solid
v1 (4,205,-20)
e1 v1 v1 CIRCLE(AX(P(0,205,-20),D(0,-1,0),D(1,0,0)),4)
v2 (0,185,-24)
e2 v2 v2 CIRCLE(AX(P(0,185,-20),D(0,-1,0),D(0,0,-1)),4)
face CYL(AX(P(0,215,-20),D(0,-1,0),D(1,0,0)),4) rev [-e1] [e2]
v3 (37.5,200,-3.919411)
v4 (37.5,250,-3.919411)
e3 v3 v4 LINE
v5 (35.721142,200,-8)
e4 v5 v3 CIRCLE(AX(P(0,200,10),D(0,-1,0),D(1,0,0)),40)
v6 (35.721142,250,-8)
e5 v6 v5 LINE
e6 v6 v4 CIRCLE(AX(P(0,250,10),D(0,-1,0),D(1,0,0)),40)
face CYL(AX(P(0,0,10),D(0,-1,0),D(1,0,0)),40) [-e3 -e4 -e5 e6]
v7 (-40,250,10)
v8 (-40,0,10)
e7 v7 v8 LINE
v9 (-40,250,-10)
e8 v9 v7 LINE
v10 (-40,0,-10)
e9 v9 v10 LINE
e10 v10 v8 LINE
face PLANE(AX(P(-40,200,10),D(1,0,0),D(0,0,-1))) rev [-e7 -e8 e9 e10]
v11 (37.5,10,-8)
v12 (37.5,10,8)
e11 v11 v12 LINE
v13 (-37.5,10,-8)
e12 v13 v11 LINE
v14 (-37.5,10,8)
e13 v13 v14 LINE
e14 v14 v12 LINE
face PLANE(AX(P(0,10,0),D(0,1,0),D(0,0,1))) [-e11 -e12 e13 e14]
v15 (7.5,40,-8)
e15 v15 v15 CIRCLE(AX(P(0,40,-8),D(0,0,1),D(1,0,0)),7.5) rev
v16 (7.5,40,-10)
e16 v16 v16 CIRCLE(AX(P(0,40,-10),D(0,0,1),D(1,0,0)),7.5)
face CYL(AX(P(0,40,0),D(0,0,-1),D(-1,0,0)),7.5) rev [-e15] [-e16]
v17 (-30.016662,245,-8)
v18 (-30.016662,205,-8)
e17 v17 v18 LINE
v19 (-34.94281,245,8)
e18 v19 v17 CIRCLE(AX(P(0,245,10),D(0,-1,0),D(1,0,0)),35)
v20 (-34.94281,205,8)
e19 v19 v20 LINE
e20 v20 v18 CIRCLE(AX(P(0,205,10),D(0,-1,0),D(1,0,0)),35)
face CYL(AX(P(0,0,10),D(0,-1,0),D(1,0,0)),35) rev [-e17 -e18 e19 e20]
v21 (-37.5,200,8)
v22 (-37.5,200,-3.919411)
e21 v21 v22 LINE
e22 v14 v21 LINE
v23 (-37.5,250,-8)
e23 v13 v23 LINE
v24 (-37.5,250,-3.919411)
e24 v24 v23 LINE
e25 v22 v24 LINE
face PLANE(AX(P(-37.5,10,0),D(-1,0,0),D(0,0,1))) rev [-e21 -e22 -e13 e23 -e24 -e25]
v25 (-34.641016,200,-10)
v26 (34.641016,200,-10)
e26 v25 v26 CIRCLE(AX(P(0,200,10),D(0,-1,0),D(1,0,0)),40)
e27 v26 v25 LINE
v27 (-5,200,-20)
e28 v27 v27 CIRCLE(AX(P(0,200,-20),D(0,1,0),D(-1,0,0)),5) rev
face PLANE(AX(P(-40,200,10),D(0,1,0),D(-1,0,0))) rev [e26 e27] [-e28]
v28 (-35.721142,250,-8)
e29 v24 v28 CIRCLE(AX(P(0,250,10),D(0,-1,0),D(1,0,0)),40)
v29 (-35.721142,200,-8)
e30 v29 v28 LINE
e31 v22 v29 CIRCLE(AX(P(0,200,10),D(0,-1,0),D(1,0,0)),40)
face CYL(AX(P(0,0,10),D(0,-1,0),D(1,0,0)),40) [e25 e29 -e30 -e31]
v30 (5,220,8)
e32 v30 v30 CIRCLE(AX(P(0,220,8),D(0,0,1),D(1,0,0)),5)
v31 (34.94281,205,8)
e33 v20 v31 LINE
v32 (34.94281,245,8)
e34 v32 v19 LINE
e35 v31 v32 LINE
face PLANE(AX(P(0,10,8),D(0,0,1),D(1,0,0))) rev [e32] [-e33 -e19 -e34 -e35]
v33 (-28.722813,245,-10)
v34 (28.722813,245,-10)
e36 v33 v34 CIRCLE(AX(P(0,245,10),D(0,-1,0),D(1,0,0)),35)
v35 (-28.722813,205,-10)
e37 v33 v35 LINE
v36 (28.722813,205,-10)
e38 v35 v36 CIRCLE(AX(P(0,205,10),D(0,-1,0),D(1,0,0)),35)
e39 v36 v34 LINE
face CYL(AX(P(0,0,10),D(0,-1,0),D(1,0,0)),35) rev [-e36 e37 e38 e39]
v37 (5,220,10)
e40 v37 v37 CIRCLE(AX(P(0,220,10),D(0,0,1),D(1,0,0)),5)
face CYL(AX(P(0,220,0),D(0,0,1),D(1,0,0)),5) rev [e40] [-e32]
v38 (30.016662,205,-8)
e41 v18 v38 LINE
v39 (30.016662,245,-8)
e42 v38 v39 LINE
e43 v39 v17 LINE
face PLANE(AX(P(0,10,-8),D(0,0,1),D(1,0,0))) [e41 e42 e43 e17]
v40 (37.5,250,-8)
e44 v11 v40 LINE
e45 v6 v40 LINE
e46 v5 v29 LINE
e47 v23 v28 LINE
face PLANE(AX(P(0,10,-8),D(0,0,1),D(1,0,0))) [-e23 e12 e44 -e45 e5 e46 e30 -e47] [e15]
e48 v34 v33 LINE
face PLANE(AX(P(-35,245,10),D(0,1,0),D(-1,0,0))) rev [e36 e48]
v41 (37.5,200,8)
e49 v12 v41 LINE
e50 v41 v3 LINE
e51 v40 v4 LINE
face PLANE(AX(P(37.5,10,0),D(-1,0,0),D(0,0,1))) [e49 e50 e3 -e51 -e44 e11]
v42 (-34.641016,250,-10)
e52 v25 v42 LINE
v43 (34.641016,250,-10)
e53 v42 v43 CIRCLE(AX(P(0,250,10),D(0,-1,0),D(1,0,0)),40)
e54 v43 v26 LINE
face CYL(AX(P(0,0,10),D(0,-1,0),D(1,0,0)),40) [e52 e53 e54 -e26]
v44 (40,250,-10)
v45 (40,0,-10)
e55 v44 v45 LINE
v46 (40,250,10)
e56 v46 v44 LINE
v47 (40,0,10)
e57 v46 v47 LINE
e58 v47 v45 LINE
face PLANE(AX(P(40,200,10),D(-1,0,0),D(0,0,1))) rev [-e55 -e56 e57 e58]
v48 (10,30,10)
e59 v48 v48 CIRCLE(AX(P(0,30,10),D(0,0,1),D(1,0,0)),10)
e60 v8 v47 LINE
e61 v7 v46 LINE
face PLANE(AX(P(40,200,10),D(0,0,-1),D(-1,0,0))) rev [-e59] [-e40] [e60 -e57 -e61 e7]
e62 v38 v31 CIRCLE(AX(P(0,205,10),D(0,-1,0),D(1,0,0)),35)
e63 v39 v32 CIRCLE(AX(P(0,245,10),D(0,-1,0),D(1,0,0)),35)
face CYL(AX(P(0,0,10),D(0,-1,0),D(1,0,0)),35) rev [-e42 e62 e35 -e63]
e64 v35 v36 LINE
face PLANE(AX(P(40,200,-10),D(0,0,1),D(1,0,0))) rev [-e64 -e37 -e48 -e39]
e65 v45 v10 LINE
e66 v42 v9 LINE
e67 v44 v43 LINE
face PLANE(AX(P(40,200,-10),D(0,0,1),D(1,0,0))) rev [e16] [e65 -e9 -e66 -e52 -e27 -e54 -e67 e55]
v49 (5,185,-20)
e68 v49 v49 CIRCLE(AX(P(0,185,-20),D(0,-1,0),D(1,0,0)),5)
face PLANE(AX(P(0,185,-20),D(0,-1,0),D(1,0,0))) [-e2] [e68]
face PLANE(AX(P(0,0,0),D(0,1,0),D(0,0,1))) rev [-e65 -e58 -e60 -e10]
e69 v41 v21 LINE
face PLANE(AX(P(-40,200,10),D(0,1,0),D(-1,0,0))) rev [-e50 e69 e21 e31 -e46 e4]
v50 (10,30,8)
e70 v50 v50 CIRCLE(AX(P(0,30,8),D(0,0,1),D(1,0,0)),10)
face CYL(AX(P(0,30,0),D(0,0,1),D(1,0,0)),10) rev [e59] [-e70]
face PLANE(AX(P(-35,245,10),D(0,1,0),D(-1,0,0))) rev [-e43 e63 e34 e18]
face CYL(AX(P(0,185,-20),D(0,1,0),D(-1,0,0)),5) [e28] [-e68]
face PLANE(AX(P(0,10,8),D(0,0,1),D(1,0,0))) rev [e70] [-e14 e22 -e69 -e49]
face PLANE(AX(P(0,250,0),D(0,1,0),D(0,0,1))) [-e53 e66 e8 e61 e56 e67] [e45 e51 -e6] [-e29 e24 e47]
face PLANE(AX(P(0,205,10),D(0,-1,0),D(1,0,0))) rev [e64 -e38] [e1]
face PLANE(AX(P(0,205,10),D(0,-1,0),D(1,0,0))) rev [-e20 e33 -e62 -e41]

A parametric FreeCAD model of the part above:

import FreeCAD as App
import Part
import Sketcher

V = App.Vector

doc = App.newDocument("Part")
body = doc.addObject("PartDesign::Body", "Body")

# Sketch on XZ plane
sketch1 = doc.addObject("Sketcher::SketchObject", "Sketch")
body.addObject(sketch1)
sketch1.AttachmentSupport = (doc.XZ_Plane, [""])
sketch1.MapMode = "FlatFace"
sketch1.addGeometry([
    Part.LineSegment(V(-40, -10, 0), V(-40, 10, 0)),
    Part.LineSegment(V(-40, 10, 0), V(40, 10, 0)),
    Part.LineSegment(V(40, 10, 0), V(40, -10, 0)),
    Part.LineSegment(V(40, -10, 0), V(-40, -10, 0)),
], False)
sketch1.addConstraint([
    Sketcher.Constraint("Coincident", 0, 2, 1, 1),
    Sketcher.Constraint("Coincident", 1, 2, 2, 1),
    Sketcher.Constraint("Coincident", 2, 2, 3, 1),
    Sketcher.Constraint("Coincident", 3, 2, 0, 1),
    Sketcher.Constraint("Vertical", 0),
    Sketcher.Constraint("Horizontal", 1),
    Sketcher.Constraint("Vertical", 2),
    Sketcher.Constraint("Horizontal", 3),
    Sketcher.Constraint("Symmetric", 0, 2, 2, 2, -1, 1),
    Sketcher.Constraint("DistanceX", 1, 1, 1, 2, 80.0),
    Sketcher.Constraint("DistanceY", 0, 1, 0, 2, 20.0),
])
pad1 = doc.addObject("PartDesign::Pad", "Pad")
body.addObject(pad1)
pad1.Profile = sketch1
pad1.Length = 200
pad1.Reversed = True

# Sketch on XZ plane
sketch2 = doc.addObject("Sketcher::SketchObject", "Sketch001")
body.addObject(sketch2)
sketch2.AttachmentSupport = (doc.XZ_Plane, [""])
sketch2.MapMode = "FlatFace"
sketch2.AttachmentOffset = App.Placement(V(0, 0, -200), App.Rotation())
sketch2.addGeometry([
    Part.LineSegment(V(-38, -8, 0), V(-38, 8, 0)),
    Part.LineSegment(V(-38, 8, 0), V(38, 8, 0)),
    Part.LineSegment(V(38, 8, 0), V(38, -8, 0)),
    Part.LineSegment(V(38, -8, 0), V(-38, -8, 0)),
], False)
sketch2.addConstraint([
    Sketcher.Constraint("Coincident", 0, 2, 1, 1),
    Sketcher.Constraint("Coincident", 1, 2, 2, 1),
    Sketcher.Constraint("Coincident", 2, 2, 3, 1),
    Sketcher.Constraint("Coincident", 3, 2, 0, 1),
    Sketcher.Constraint("Vertical", 0),
    Sketcher.Constraint("Horizontal", 1),
    Sketcher.Constraint("Vertical", 2),
    Sketcher.Constraint("Horizontal", 3),
    Sketcher.Constraint("Symmetric", 0, 2, 2, 2, -1, 1),
    Sketcher.Constraint("DistanceX", 1, 1, 1, 2, 75.0),
    Sketcher.Constraint("DistanceY", 0, 1, 0, 2, 16.0),
])
pocket1 = doc.addObject("PartDesign::Pocket", "Pocket")
body.addObject(pocket1)
pocket1.Profile = sketch2
pocket1.Length = 190
pocket1.Reversed = True

# Sketch on XY plane
sketch3 = doc.addObject("Sketcher::SketchObject", "Sketch002")
body.addObject(sketch3)
sketch3.AttachmentSupport = (doc.XY_Plane, [""])
sketch3.MapMode = "FlatFace"
sketch3.AttachmentOffset = App.Placement(V(0, 0, -10), App.Rotation())
sketch3.addGeometry(Part.Circle(V(0, 40, 0), V(0, 0, 1), 8), False)
sketch3.addConstraint([
    Sketcher.Constraint("PointOnObject", 0, 3, -2),
    Sketcher.Constraint("Diameter", 0, 15.0),
    Sketcher.Constraint("DistanceY", -1, 1, 0, 3, 40.0),
])
pocket2 = doc.addObject("PartDesign::Pocket", "Pocket001")
body.addObject(pocket2)
pocket2.Profile = sketch3
pocket2.Length = 10
pocket2.Reversed = True

# Sketch on XZ plane
sketch4 = doc.addObject("Sketcher::SketchObject", "Sketch003")
body.addObject(sketch4)
sketch4.AttachmentSupport = (doc.XZ_Plane, [""])
sketch4.MapMode = "FlatFace"
sketch4.AttachmentOffset = App.Placement(V(0, 0, -200), App.Rotation())
sketch4.addGeometry([
    Part.LineSegment(V(-40, -10, 0), V(-40, 10, 0)),  # 0
    Part.LineSegment(V(-40, 10, 0), V(40, 10, 0)),  # 1
    Part.LineSegment(V(40, 10, 0), V(40, -10, 0)),  # 2
    Part.LineSegment(V(40, -10, 0), V(-40, -10, 0)),  # 3
    Part.LineSegment(V(38, 8, 0), V(-38, 8, 0)),  # 4
    Part.LineSegment(V(-38, 8, 0), V(-38, -8, 0)),  # 5
    Part.LineSegment(V(-38, -8, 0), V(38, -8, 0)),  # 6
    Part.LineSegment(V(38, -8, 0), V(38, 8, 0)),  # 7
], False)
sketch4.addConstraint([
    Sketcher.Constraint("Coincident", 0, 2, 1, 1),
    Sketcher.Constraint("Coincident", 1, 2, 2, 1),
    Sketcher.Constraint("Coincident", 2, 2, 3, 1),
    Sketcher.Constraint("Coincident", 3, 2, 0, 1),
    Sketcher.Constraint("Coincident", 4, 2, 5, 1),
    Sketcher.Constraint("Coincident", 5, 2, 6, 1),
    Sketcher.Constraint("Coincident", 6, 2, 7, 1),
    Sketcher.Constraint("Coincident", 7, 2, 4, 1),
    Sketcher.Constraint("Vertical", 0),
    Sketcher.Constraint("Horizontal", 1),
    Sketcher.Constraint("Vertical", 2),
    Sketcher.Constraint("Horizontal", 3),
    Sketcher.Constraint("Horizontal", 4),
    Sketcher.Constraint("Vertical", 5),
    Sketcher.Constraint("Horizontal", 6),
    Sketcher.Constraint("Vertical", 7),
    Sketcher.Constraint("Symmetric", 0, 2, 2, 2, -1, 1),
    Sketcher.Constraint("Symmetric", 4, 2, 6, 2, -1, 1),
    Sketcher.Constraint("DistanceX", 1, 1, 1, 2, 80.0),
    Sketcher.Constraint("DistanceX", 4, 2, 4, 1, 75.0),
    Sketcher.Constraint("DistanceY", 0, 1, 0, 2, 20.0),
    Sketcher.Constraint("DistanceY", 5, 2, 5, 1, 16.0),
])
pad2 = doc.addObject("PartDesign::Pad", "Pad001")
body.addObject(pad2)
pad2.Profile = sketch4
pad2.Length = 50
pad2.Reversed = True

# Sketch on XY plane
sketch5 = doc.addObject("Sketcher::SketchObject", "Sketch004")
body.addObject(sketch5)
sketch5.AttachmentSupport = (doc.XY_Plane, [""])
sketch5.MapMode = "FlatFace"
sketch5.AttachmentOffset = App.Placement(V(0, 0, 10), App.Rotation())
sketch5.addGeometry(Part.Circle(V(0, 220, 0), V(0, 0, 1), 5), False)
sketch5.addConstraint([
    Sketcher.Constraint("PointOnObject", 0, 3, -2),
    Sketcher.Constraint("Diameter", 0, 10.0),
    Sketcher.Constraint("DistanceY", -1, 1, 0, 3, 220.0),
])
pocket3 = doc.addObject("PartDesign::Pocket", "Pocket002")
body.addObject(pocket3)
pocket3.Profile = sketch5
pocket3.Length = 10

# Sketch on XY plane
sketch6 = doc.addObject("Sketcher::SketchObject", "Sketch005")
body.addObject(sketch6)
sketch6.AttachmentSupport = (doc.XY_Plane, [""])
sketch6.MapMode = "FlatFace"
sketch6.AttachmentOffset = App.Placement(V(0, 0, 10), App.Rotation())
sketch6.addGeometry([
    Part.LineSegment(V(40, 250, 0), V(0, 250, 0)),  # 0
    Part.LineSegment(V(0, 250, 0), V(0, 245, 0)),  # 1
    Part.LineSegment(V(0, 245, 0), V(35, 245, 0)),  # 2
    Part.LineSegment(V(35, 245, 0), V(35, 205, 0)),  # 3
    Part.LineSegment(V(35, 205, 0), V(0, 205, 0)),  # 4
    Part.LineSegment(V(0, 205, 0), V(0, 200, 0)),  # 5
    Part.LineSegment(V(0, 200, 0), V(40, 200, 0)),  # 6
    Part.LineSegment(V(40, 200, 0), V(40, 250, 0)),  # 7
], False)
sketch6.addConstraint([
    Sketcher.Constraint("Coincident", 0, 2, 1, 1),
    Sketcher.Constraint("Coincident", 1, 2, 2, 1),
    Sketcher.Constraint("Coincident", 2, 2, 3, 1),
    Sketcher.Constraint("Coincident", 3, 2, 4, 1),
    Sketcher.Constraint("Coincident", 4, 2, 5, 1),
    Sketcher.Constraint("Coincident", 5, 2, 6, 1),
    Sketcher.Constraint("Coincident", 6, 2, 7, 1),
    Sketcher.Constraint("Coincident", 7, 2, 0, 1),
    Sketcher.Constraint("Horizontal", 0),
    Sketcher.Constraint("Vertical", 1),
    Sketcher.Constraint("Horizontal", 2),
    Sketcher.Constraint("Vertical", 3),
    Sketcher.Constraint("Horizontal", 4),
    Sketcher.Constraint("Vertical", 5),
    Sketcher.Constraint("Horizontal", 6),
    Sketcher.Constraint("Vertical", 7),
    Sketcher.Constraint("PointOnObject", 0, 2, -2),
    Sketcher.Constraint("PointOnObject", 4, 2, -2),
    Sketcher.Constraint("Equal", 6, 3),
    Sketcher.Constraint("Equal", 1, 5),
    Sketcher.Constraint("DistanceX", 0, 2, 0, 1, 40.0),
    Sketcher.Constraint("DistanceX", 2, 1, 2, 2, 35.0),
    Sketcher.Constraint("DistanceY", 1, 2, 1, 1, 5.0),
    Sketcher.Constraint("DistanceY", -1, 1, 0, 2, 250.0),
])
revolution = doc.addObject("PartDesign::Revolution", "Revolution")
body.addObject(revolution)
revolution.Profile = sketch6
revolution.ReferenceAxis = (sketch6, ["V_Axis"])
revolution.Angle = 180

# Sketch on XY plane
sketch7 = doc.addObject("Sketcher::SketchObject", "Sketch006")
body.addObject(sketch7)
sketch7.AttachmentSupport = (doc.XY_Plane, [""])
sketch7.MapMode = "FlatFace"
sketch7.AttachmentOffset = App.Placement(V(0, 0, 10), App.Rotation())
sketch7.addGeometry(Part.Circle(V(0, 30, 0), V(0, 0, 1), 10), False)
sketch7.addConstraint([
    Sketcher.Constraint("PointOnObject", 0, 3, -2),
    Sketcher.Constraint("Diameter", 0, 20.0),
    Sketcher.Constraint("DistanceY", -1, 1, 0, 3, 30.0),
])
pocket4 = doc.addObject("PartDesign::Pocket", "Pocket003")
body.addObject(pocket4)
pocket4.Profile = sketch7
pocket4.Length = 10

# Sketch on XZ plane
sketch8 = doc.addObject("Sketcher::SketchObject", "Sketch007")
body.addObject(sketch8)
sketch8.AttachmentSupport = (doc.XZ_Plane, [""])
sketch8.MapMode = "FlatFace"
sketch8.AttachmentOffset = App.Placement(V(0, 0, -200), App.Rotation())
sketch8.addGeometry(Part.Circle(V(0, -20, 0), V(0, 0, 1), 5), False)
sketch8.addConstraint([
    Sketcher.Constraint("PointOnObject", 0, 3, -2),
    Sketcher.Constraint("Diameter", 0, 10.0),
    Sketcher.Constraint("DistanceY", 0, 3, -1, 1, 20.0),
])
pad3 = doc.addObject("PartDesign::Pad", "Pad002")
body.addObject(pad3)
pad3.Profile = sketch8
pad3.Length = 15

# Sketch on XZ plane
sketch9 = doc.addObject("Sketcher::SketchObject", "Sketch008")
body.addObject(sketch9)
sketch9.AttachmentSupport = (doc.XZ_Plane, [""])
sketch9.MapMode = "FlatFace"
sketch9.AttachmentOffset = App.Placement(V(0, 0, -185), App.Rotation())
sketch9.addGeometry(Part.Circle(V(0, -20, 0), V(0, 0, 1), 4), False)
sketch9.addConstraint([
    Sketcher.Constraint("PointOnObject", 0, 3, -2),
    Sketcher.Constraint("Diameter", 0, 8.0),
    Sketcher.Constraint("DistanceY", 0, 3, -1, 1, 20.0),
])
pocket5 = doc.addObject("PartDesign::Pocket", "Pocket004")
body.addObject(pocket5)
pocket5.Profile = sketch9
pocket5.Length = 30

doc.recompute()
